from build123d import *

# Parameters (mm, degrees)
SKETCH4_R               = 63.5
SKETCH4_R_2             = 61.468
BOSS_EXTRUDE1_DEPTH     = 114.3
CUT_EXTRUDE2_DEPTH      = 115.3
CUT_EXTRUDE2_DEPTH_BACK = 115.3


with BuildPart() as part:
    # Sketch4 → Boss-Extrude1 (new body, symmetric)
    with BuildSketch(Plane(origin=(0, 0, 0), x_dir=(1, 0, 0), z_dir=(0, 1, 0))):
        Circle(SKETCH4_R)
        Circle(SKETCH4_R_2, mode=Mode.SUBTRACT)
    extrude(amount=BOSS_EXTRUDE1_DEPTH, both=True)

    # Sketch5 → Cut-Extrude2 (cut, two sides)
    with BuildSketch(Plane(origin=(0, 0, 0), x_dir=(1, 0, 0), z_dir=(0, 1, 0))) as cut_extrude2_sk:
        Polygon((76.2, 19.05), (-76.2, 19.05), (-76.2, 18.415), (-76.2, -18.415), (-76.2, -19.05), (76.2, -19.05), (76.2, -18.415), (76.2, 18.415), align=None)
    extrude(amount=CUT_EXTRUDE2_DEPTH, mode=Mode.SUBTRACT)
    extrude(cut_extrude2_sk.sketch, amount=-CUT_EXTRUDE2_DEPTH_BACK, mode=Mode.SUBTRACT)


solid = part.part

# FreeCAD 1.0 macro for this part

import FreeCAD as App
import Part
import Sketcher
Q = App.Units.Quantity

doc = App.newDocument("Part")
body = doc.addObject("PartDesign::Body", "Body")
body.AllowCompound = True

# Sketch on XZ plane
sketch1 = body.newObject("Sketcher::SketchObject", "Sketch")
sketch1.AttachmentSupport = (doc.getObject("XZ_Plane"), [""])
sketch1.MapMode = "FlatFace"
sketch1.addGeometry([
    Part.Circle(App.Vector(0, 0, 0), App.Vector(0, 0, 1), 63.5),
    Part.Circle(App.Vector(0, 0, 0), App.Vector(0, 0, 1), 61.468),
], False)
sketch1.addConstraint([
    Sketcher.Constraint("Coincident", 0, 3, -1, 1),
    Sketcher.Constraint("Coincident", 1, 3, -1, 1),
    Sketcher.Constraint("Diameter", 0, Q("5 in")),
    Sketcher.Constraint("Diameter", 1, Q("4.84 in")),
])
pad1 = body.newObject("PartDesign::Pad", "Pad")
pad1.Profile = sketch1
pad1.Length = Q("9 in")
pad1.Midplane = True

# Sketch on XZ plane
sketch2 = body.newObject("Sketcher::SketchObject", "Sketch001")
sketch2.AttachmentSupport = (doc.getObject("XZ_Plane"), [""])
sketch2.MapMode = "FlatFace"
sketch2.addGeometry([
    Part.LineSegment(App.Vector(76.2, -19.05, 0), App.Vector(-76.2, -19.05, 0)),
    Part.LineSegment(App.Vector(-76.2, -19.05, 0), App.Vector(-76.2, 19.05, 0)),
    Part.LineSegment(App.Vector(-76.2, 19.05, 0), App.Vector(76.2, 19.05, 0)),
    Part.LineSegment(App.Vector(76.2, 19.05, 0), App.Vector(76.2, -19.05, 0)),
], False)
sketch2.addConstraint([
    Sketcher.Constraint("Coincident", 0, 2, 1, 1),
    Sketcher.Constraint("Coincident", 1, 2, 2, 1),
    Sketcher.Constraint("Coincident", 2, 2, 3, 1),
    Sketcher.Constraint("Coincident", 3, 2, 0, 1),
    Sketcher.Constraint("Horizontal", 0),
    Sketcher.Constraint("Vertical", 1),
    Sketcher.Constraint("Horizontal", 2),
    Sketcher.Constraint("Vertical", 3),
    Sketcher.Constraint("Symmetric", 0, 2, 2, 2, -1, 1),
    Sketcher.Constraint("DistanceX", 0, 2, 0, 1, Q("6 in")),
    Sketcher.Constraint("DistanceY", 1, 1, 1, 2, Q("1.5 in")),
])
pocket1 = body.newObject("PartDesign::Pocket", "Pocket")
pocket1.Profile = sketch2
pocket1.Type = "ThroughAll"
pocket1.Midplane = True

doc.recompute()
